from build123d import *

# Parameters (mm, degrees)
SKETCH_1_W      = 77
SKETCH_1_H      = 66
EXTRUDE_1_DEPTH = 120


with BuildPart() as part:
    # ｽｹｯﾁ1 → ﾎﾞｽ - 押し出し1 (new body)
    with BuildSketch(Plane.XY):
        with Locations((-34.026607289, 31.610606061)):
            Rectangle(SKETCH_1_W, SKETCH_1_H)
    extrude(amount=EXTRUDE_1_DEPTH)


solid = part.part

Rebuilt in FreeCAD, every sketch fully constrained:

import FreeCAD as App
import Part
import Sketcher
from FreeCAD import Vector
Q = App.Units.Quantity


def add_polygon(sketch, points):
    """Adds a closed chain of lines whose ends are joined by coincident constraints."""
    first, n = sketch.GeometryCount, len(points)
    for a, b in zip(points, points[1:] + points[:1]):
        sketch.addGeometry(Part.LineSegment(App.Vector(*a, 0), App.Vector(*b, 0)), False)
    for i in range(n):
        sketch.addConstraint(Sketcher.Constraint("Coincident", first + i, 2, first + (i + 1) % n, 1))

doc = App.newDocument("Part")
body = doc.addObject("PartDesign::Body", "Body")

# Sketch on XY plane
sketch1 = doc.addObject("Sketcher::SketchObject", "Sketch")
body.addObject(sketch1)
sketch1.AttachmentSupport = (doc.XY_Plane, [""])
sketch1.MapMode = "FlatFace"
add_polygon(sketch1, [(-73, 65), (-73, -1), (4, -1), (4, 65)])  # lines 0-3
sketch1.addConstraint([
    Sketcher.Constraint("Vertical", 0),
    Sketcher.Constraint("Horizontal", 1),
    Sketcher.Constraint("Vertical", 2),
    Sketcher.Constraint("Horizontal", 3),
    Sketcher.Constraint("DistanceX", 1, 1, 1, 2, Q("77 mm")),
    Sketcher.Constraint("DistanceY", 0, 2, 0, 1, Q("66 mm")),
    Sketcher.Constraint("DistanceX", 0, 2, -1, 1, Q("72.526607 mm")),
    Sketcher.Constraint("DistanceY", 0, 2, -1, 1, Q("1.389394 mm")),
])
pad1 = doc.addObject("PartDesign::Pad", "Pad")
body.addObject(pad1)
pad1.Profile = sketch1
pad1.Length = 120

doc.recompute()
